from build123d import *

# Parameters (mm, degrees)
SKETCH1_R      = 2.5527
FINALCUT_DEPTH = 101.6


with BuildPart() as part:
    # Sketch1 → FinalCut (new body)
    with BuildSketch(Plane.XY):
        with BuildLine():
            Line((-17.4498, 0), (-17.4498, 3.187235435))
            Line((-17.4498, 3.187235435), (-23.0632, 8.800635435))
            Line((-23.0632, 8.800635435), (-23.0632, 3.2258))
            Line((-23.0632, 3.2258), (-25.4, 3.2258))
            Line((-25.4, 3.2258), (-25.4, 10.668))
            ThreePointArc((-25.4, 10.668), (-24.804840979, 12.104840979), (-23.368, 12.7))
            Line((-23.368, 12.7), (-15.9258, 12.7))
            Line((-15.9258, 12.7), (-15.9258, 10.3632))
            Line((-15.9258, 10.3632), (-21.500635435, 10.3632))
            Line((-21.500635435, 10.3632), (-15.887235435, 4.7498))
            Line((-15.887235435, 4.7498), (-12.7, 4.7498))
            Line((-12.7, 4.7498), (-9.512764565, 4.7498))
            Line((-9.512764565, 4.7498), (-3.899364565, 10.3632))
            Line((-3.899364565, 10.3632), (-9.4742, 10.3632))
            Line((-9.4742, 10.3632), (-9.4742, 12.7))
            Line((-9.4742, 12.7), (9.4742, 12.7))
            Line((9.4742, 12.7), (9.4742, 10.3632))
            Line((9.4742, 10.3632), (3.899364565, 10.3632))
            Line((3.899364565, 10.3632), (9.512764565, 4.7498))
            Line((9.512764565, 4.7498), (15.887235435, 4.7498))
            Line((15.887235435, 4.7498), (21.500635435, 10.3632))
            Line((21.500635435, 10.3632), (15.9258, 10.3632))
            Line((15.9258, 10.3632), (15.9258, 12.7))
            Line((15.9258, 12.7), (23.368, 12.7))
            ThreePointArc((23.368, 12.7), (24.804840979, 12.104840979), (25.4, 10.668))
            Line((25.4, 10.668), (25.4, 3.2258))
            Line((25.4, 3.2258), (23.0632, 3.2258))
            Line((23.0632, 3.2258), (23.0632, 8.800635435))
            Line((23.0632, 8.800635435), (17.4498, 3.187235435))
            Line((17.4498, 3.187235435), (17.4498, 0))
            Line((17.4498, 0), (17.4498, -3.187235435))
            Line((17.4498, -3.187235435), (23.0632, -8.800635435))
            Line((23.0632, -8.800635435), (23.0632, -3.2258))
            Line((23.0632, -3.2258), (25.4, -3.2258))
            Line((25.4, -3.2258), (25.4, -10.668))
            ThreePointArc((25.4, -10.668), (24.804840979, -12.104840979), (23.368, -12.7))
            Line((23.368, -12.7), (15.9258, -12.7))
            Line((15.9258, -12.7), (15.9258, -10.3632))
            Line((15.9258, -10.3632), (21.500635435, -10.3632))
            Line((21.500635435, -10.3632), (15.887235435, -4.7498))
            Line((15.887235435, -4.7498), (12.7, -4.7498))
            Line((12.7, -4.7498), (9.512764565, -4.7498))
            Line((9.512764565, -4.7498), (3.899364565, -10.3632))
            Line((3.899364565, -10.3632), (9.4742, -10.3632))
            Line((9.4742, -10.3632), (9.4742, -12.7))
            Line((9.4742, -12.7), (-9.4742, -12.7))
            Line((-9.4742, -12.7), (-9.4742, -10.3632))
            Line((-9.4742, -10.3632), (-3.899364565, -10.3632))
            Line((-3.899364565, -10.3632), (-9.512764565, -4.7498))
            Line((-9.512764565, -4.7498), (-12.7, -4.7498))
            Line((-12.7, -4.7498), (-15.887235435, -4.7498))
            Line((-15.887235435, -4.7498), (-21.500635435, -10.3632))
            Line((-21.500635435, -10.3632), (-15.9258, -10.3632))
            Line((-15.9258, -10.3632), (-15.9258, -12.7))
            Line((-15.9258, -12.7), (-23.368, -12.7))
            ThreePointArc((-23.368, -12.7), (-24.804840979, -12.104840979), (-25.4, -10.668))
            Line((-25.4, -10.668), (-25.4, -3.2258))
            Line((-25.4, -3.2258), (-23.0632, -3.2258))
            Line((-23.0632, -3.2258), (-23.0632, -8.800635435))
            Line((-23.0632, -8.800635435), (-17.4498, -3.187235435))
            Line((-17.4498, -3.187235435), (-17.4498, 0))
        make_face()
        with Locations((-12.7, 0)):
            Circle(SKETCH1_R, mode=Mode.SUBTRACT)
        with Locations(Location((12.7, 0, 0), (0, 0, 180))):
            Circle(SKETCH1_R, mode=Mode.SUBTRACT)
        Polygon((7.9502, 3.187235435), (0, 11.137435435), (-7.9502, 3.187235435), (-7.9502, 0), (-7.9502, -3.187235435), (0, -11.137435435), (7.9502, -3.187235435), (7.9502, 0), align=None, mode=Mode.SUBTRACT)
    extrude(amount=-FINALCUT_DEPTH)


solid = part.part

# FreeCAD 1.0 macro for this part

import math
import FreeCAD as App
import Part
import Sketcher
from FreeCAD import Vector
Q = App.Units.Quantity

doc = App.newDocument("Part")
body = doc.addObject("PartDesign::Body", "Body")

sketch1 = body.newObject("Sketcher::SketchObject", "Sketch")
sketch1.AttachmentSupport = (doc.getObject("XY_Plane"), [""])
sketch1.MapMode = "FlatFace"
sketch1.addGeometry([
    Part.LineSegment(Vector(-23.1, 8.8, 0), Vector(-17.4, 3.2, 0)),
    Part.LineSegment(Vector(-17.4, 3.2, 0), Vector(-17.4, -3.2, 0)),
    Part.LineSegment(Vector(-17.4, -3.2, 0), Vector(-23.1, -8.8, 0)),
    Part.LineSegment(Vector(-23.1, -8.8, 0), Vector(-23.1, -3.2, 0)),
    Part.LineSegment(Vector(-23.1, -3.2, 0), Vector(-25.4, -3.2, 0)),
    Part.LineSegment(Vector(-25.4, -3.2, 0), Vector(-25.4, -10.7, 0)),
    Part.ArcOfCircle(Part.Circle(Vector(-23.4, -10.7, 0), Vector(0, 0, 1), 2), math.radians(-180), math.radians(-90)),
    Part.LineSegment(Vector(-23.4, -12.7, 0), Vector(-15.9, -12.7, 0)),
    Part.LineSegment(Vector(-15.9, -12.7, 0), Vector(-15.9, -10.4, 0)),
    Part.LineSegment(Vector(-15.9, -10.4, 0), Vector(-21.5, -10.4, 0)),
    Part.LineSegment(Vector(-21.5, -10.4, 0), Vector(-15.9, -4.7, 0)),
    Part.LineSegment(Vector(-15.9, -4.7, 0), Vector(-9.5, -4.7, 0)),
    Part.LineSegment(Vector(-9.5, -4.7, 0), Vector(-3.9, -10.4, 0)),
    Part.LineSegment(Vector(-3.9, -10.4, 0), Vector(-9.5, -10.4, 0)),
    Part.LineSegment(Vector(-9.5, -10.4, 0), Vector(-9.5, -12.7, 0)),
    Part.LineSegment(Vector(-9.5, -12.7, 0), Vector(9.5, -12.7, 0)),
    Part.LineSegment(Vector(9.5, -12.7, 0), Vector(9.5, -10.4, 0)),
    Part.LineSegment(Vector(9.5, -10.4, 0), Vector(3.9, -10.4, 0)),
    Part.LineSegment(Vector(3.9, -10.4, 0), Vector(9.5, -4.7, 0)),
    Part.LineSegment(Vector(9.5, -4.7, 0), Vector(15.9, -4.7, 0)),
    Part.LineSegment(Vector(15.9, -4.7, 0), Vector(21.5, -10.4, 0)),
    Part.LineSegment(Vector(21.5, -10.4, 0), Vector(15.9, -10.4, 0)),
    Part.LineSegment(Vector(15.9, -10.4, 0), Vector(15.9, -12.7, 0)),
    Part.LineSegment(Vector(15.9, -12.7, 0), Vector(23.4, -12.7, 0)),
    Part.ArcOfCircle(Part.Circle(Vector(23.4, -10.7, 0), Vector(0, 0, 1), 2), math.radians(-90), math.radians(0)),
    Part.LineSegment(Vector(25.4, -10.7, 0), Vector(25.4, -3.2, 0)),
    Part.LineSegment(Vector(25.4, -3.2, 0), Vector(23.1, -3.2, 0)),
    Part.LineSegment(Vector(23.1, -3.2, 0), Vector(23.1, -8.8, 0)),
    Part.LineSegment(Vector(23.1, -8.8, 0), Vector(17.4, -3.2, 0)),
    Part.LineSegment(Vector(17.4, -3.2, 0), Vector(17.4, 3.2, 0)),
    Part.LineSegment(Vector(17.4, 3.2, 0), Vector(23.1, 8.8, 0)),
    Part.LineSegment(Vector(23.1, 8.8, 0), Vector(23.1, 3.2, 0)),
    Part.LineSegment(Vector(23.1, 3.2, 0), Vector(25.4, 3.2, 0)),
    Part.LineSegment(Vector(25.4, 3.2, 0), Vector(25.4, 10.7, 0)),
    Part.ArcOfCircle(Part.Circle(Vector(23.4, 10.7, 0), Vector(0, 0, 1), 2), math.radians(0), math.radians(90)),
    Part.LineSegment(Vector(23.4, 12.7, 0), Vector(15.9, 12.7, 0)),
    Part.LineSegment(Vector(15.9, 12.7, 0), Vector(15.9, 10.4, 0)),
    Part.LineSegment(Vector(15.9, 10.4, 0), Vector(21.5, 10.4, 0)),
    Part.LineSegment(Vector(21.5, 10.4, 0), Vector(15.9, 4.7, 0)),
    Part.LineSegment(Vector(15.9, 4.7, 0), Vector(9.5, 4.7, 0)),
    Part.LineSegment(Vector(9.5, 4.7, 0), Vector(3.9, 10.4, 0)),
    Part.LineSegment(Vector(3.9, 10.4, 0), Vector(9.5, 10.4, 0)),
    Part.LineSegment(Vector(9.5, 10.4, 0), Vector(9.5, 12.7, 0)),
    Part.LineSegment(Vector(9.5, 12.7, 0), Vector(-9.5, 12.7, 0)),
    Part.LineSegment(Vector(-9.5, 12.7, 0), Vector(-9.5, 10.4, 0)),
    Part.LineSegment(Vector(-9.5, 10.4, 0), Vector(-3.9, 10.4, 0)),
    Part.LineSegment(Vector(-3.9, 10.4, 0), Vector(-9.5, 4.7, 0)),
    Part.LineSegment(Vector(-9.5, 4.7, 0), Vector(-15.9, 4.7, 0)),
    Part.LineSegment(Vector(-15.9, 4.7, 0), Vector(-21.5, 10.4, 0)),
    Part.LineSegment(Vector(-21.5, 10.4, 0), Vector(-15.9, 10.4, 0)),
    Part.LineSegment(Vector(-15.9, 10.4, 0), Vector(-15.9, 12.7, 0)),
    Part.LineSegment(Vector(-15.9, 12.7, 0), Vector(-23.4, 12.7, 0)),
    Part.ArcOfCircle(Part.Circle(Vector(-23.4, 10.7, 0), Vector(0, 0, 1), 2), math.radians(90), math.radians(180)),
    Part.LineSegment(Vector(-25.4, 10.7, 0), Vector(-25.4, 3.2, 0)),
    Part.LineSegment(Vector(-25.4, 3.2, 0), Vector(-23.1, 3.2, 0)),
    Part.LineSegment(Vector(-23.1, 3.2, 0), Vector(-23.1, 8.8, 0)),
    Part.Circle(Vector(12.7, 0, 0), Vector(0, 0, 1), 2.6),
    Part.LineSegment(Vector(8, 3.2, 0), Vector(8, -3.2, 0)),
    Part.LineSegment(Vector(8, -3.2, 0), Vector(0, -11.1, 0)),
    Part.LineSegment(Vector(0, -11.1, 0), Vector(-8, -3.2, 0)),
    Part.LineSegment(Vector(-8, -3.2, 0), Vector(-8, 3.2, 0)),
    Part.LineSegment(Vector(-8, 3.2, 0), Vector(0, 11.1, 0)),
    Part.LineSegment(Vector(0, 11.1, 0), Vector(8, 3.2, 0)),
    Part.Circle(Vector(-12.7, 0, 0), Vector(0, 0, 1), 2.6),
], False)
sketch1.addConstraint([
    Sketcher.Constraint("Coincident", 0, 2, 1, 1),
    Sketcher.Constraint("Coincident", 1, 2, 2, 1),
    Sketcher.Constraint("Coincident", 2, 2, 3, 1),
    Sketcher.Constraint("Coincident", 3, 2, 4, 1),
    Sketcher.Constraint("Coincident", 4, 2, 5, 1),
    Sketcher.Constraint("Tangent", 5, 2, 6, 1),
    Sketcher.Constraint("Tangent", 6, 2, 7, 1),
    Sketcher.Constraint("Coincident", 7, 2, 8, 1),
    Sketcher.Constraint("Coincident", 8, 2, 9, 1),
    Sketcher.Constraint("Coincident", 9, 2, 10, 1),
    Sketcher.Constraint("Coincident", 10, 2, 11, 1),
    Sketcher.Constraint("Coincident", 11, 2, 12, 1),
    Sketcher.Constraint("Coincident", 12, 2, 13, 1),
    Sketcher.Constraint("Coincident", 13, 2, 14, 1),
    Sketcher.Constraint("Coincident", 14, 2, 15, 1),
    Sketcher.Constraint("Coincident", 15, 2, 16, 1),
    Sketcher.Constraint("Coincident", 16, 2, 17, 1),
    Sketcher.Constraint("Coincident", 17, 2, 18, 1),
    Sketcher.Constraint("Coincident", 18, 2, 19, 1),
    Sketcher.Constraint("Coincident", 19, 2, 20, 1),
    Sketcher.Constraint("Coincident", 20, 2, 21, 1),
    Sketcher.Constraint("Coincident", 21, 2, 22, 1),
    Sketcher.Constraint("Coincident", 22, 2, 23, 1),
    Sketcher.Constraint("Tangent", 23, 2, 24, 1),
    Sketcher.Constraint("Tangent", 24, 2, 25, 1),
    Sketcher.Constraint("Coincident", 25, 2, 26, 1),
    Sketcher.Constraint("Coincident", 26, 2, 27, 1),
    Sketcher.Constraint("Coincident", 27, 2, 28, 1),
    Sketcher.Constraint("Coincident", 28, 2, 29, 1),
    Sketcher.Constraint("Coincident", 29, 2, 30, 1),
    Sketcher.Constraint("Coincident", 30, 2, 31, 1),
    Sketcher.Constraint("Coincident", 31, 2, 32, 1),
    Sketcher.Constraint("Coincident", 32, 2, 33, 1),
    Sketcher.Constraint("Tangent", 33, 2, 34, 1),
    Sketcher.Constraint("Tangent", 34, 2, 35, 1),
    Sketcher.Constraint("Coincident", 35, 2, 36, 1),
    Sketcher.Constraint("Coincident", 36, 2, 37, 1),
    Sketcher.Constraint("Coincident", 37, 2, 38, 1),
    Sketcher.Constraint("Coincident", 38, 2, 39, 1),
    Sketcher.Constraint("Coincident", 39, 2, 40, 1),
    Sketcher.Constraint("Coincident", 40, 2, 41, 1),
    Sketcher.Constraint("Coincident", 41, 2, 42, 1),
    Sketcher.Constraint("Coincident", 42, 2, 43, 1),
    Sketcher.Constraint("Coincident", 43, 2, 44, 1),
    Sketcher.Constraint("Coincident", 44, 2, 45, 1),
    Sketcher.Constraint("Coincident", 45, 2, 46, 1),
    Sketcher.Constraint("Coincident", 46, 2, 47, 1),
    Sketcher.Constraint("Coincident", 47, 2, 48, 1),
    Sketcher.Constraint("Coincident", 48, 2, 49, 1),
    Sketcher.Constraint("Coincident", 49, 2, 50, 1),
    Sketcher.Constraint("Coincident", 50, 2, 51, 1),
    Sketcher.Constraint("Tangent", 51, 2, 52, 1),
    Sketcher.Constraint("Tangent", 52, 2, 53, 1),
    Sketcher.Constraint("Coincident", 53, 2, 54, 1),
    Sketcher.Constraint("Coincident", 54, 2, 55, 1),
    Sketcher.Constraint("Coincident", 55, 2, 0, 1),
    Sketcher.Constraint("Coincident", 57, 2, 58, 1),
    Sketcher.Constraint("Coincident", 58, 2, 59, 1),
    Sketcher.Constraint("Coincident", 59, 2, 60, 1),
    Sketcher.Constraint("Coincident", 60, 2, 61, 1),
    Sketcher.Constraint("Coincident", 61, 2, 62, 1),
    Sketcher.Constraint("Coincident", 62, 2, 57, 1),
    Sketcher.Constraint("Vertical", 1),
    Sketcher.Constraint("Vertical", 3),
    Sketcher.Constraint("Horizontal", 4),
    Sketcher.Constraint("Vertical", 5),
    Sketcher.Constraint("Horizontal", 7),
    Sketcher.Constraint("Vertical", 8),
    Sketcher.Constraint("Horizontal", 9),
    Sketcher.Constraint("Horizontal", 11),
    Sketcher.Constraint("Horizontal", 13),
    Sketcher.Constraint("Vertical", 14),
    Sketcher.Constraint("Horizontal", 15),
    Sketcher.Constraint("Vertical", 16),
    Sketcher.Constraint("Horizontal", 17),
    Sketcher.Constraint("Horizontal", 19),
    Sketcher.Constraint("Horizontal", 21),
    Sketcher.Constraint("Vertical", 22),
    Sketcher.Constraint("Horizontal", 23),
    Sketcher.Constraint("Vertical", 25),
    Sketcher.Constraint("Horizontal", 26),
    Sketcher.Constraint("Vertical", 27),
    Sketcher.Constraint("Vertical", 29),
    Sketcher.Constraint("Vertical", 31),
    Sketcher.Constraint("Horizontal", 32),
    Sketcher.Constraint("Vertical", 33),
    Sketcher.Constraint("Horizontal", 35),
    Sketcher.Constraint("Vertical", 36),
    Sketcher.Constraint("Horizontal", 37),
    Sketcher.Constraint("Horizontal", 39),
    Sketcher.Constraint("Horizontal", 41),
    Sketcher.Constraint("Vertical", 42),
    Sketcher.Constraint("Horizontal", 43),
    Sketcher.Constraint("Vertical", 44),
    Sketcher.Constraint("Horizontal", 45),
    Sketcher.Constraint("Horizontal", 47),
    Sketcher.Constraint("Horizontal", 49),
    Sketcher.Constraint("Vertical", 50),
    Sketcher.Constraint("Horizontal", 51),
    Sketcher.Constraint("Vertical", 53),
    Sketcher.Constraint("Horizontal", 54),
    Sketcher.Constraint("Vertical", 55),
    Sketcher.Constraint("Vertical", 57),
    Sketcher.Constraint("Vertical", 60),
    Sketcher.Constraint("Equal", 6, 24),
    Sketcher.Constraint("Equal", 24, 34),
    Sketcher.Constraint("Equal", 34, 52),
    Sketcher.Constraint("Equal", 56, 63),
    Sketcher.Constraint("Symmetric", 6, 3, 34, 3, -1, 1),
    Sketcher.Constraint("Symmetric", 24, 3, 52, 3, -1, 1),
    Sketcher.Constraint("Symmetric", 56, 3, 63, 3, -1, 1),
    Sketcher.Constraint("Symmetric", 0, 2, 28, 2, -1, 1),
    Sketcher.Constraint("Symmetric", 2, 2, 30, 2, -1, 1),
    Sketcher.Constraint("Symmetric", 8, 2, 36, 2, -1, 1),
    Sketcher.Constraint("Symmetric", 10, 2, 38, 2, -1, 1),
    Sketcher.Constraint("Symmetric", 12, 2, 40, 2, -1, 1),
    Sketcher.Constraint("Symmetric", 14, 2, 42, 2, -1, 1),
    Sketcher.Constraint("Symmetric", 16, 2, 44, 2, -1, 1),
    Sketcher.Constraint("Symmetric", 18, 2, 46, 2, -1, 1),
    Sketcher.Constraint("Symmetric", 20, 2, 48, 2, -1, 1),
    Sketcher.Constraint("Symmetric", 26, 2, 54, 2, -1, 1),
    Sketcher.Constraint("Symmetric", 57, 2, 60, 2, -1, 1),
    Sketcher.Constraint("Symmetric", 58, 2, 61, 2, -1, 1),
    Sketcher.Constraint("Symmetric", 6, 3, 24, 3, -2),
    Sketcher.Constraint("Symmetric", 13, 2, 16, 2, -2),
    Sketcher.Constraint("Symmetric", 11, 2, 18, 2, -2),
    Sketcher.Constraint("Symmetric", 9, 2, 20, 2, -2),
    Sketcher.Constraint("Symmetric", 3, 2, 26, 2, -2),
    Sketcher.Constraint("PointOnObject", 56, 3, -1),
    Sketcher.Constraint("PointOnObject", 58, 2, -2),
    Sketcher.Constraint("Perpendicular", 0, 2),
    Sketcher.Constraint("Parallel", 2, 10),
    Sketcher.Constraint("Perpendicular", 10, 12),
    Sketcher.Constraint("Perpendicular", 12, 18),
    Sketcher.Constraint("Perpendicular", 18, 20),
    Sketcher.Constraint("Parallel", 20, 28),
    Sketcher.Constraint("Perpendicular", 28, 30),
    Sketcher.Constraint("Parallel", 30, 38),
    Sketcher.Constraint("Perpendicular", 38, 40),
    Sketcher.Constraint("Perpendicular", 40, 46),
    Sketcher.Constraint("Perpendicular", 46, 48),
    Sketcher.Constraint("Perpendicular", 48, 58),
    Sketcher.Constraint("Perpendicular", 58, 59),
    Sketcher.Constraint("Perpendicular", 61, 62),
    Sketcher.Constraint("Horizontal", 9, 2, 12, 2),
    Sketcher.Constraint("Horizontal", 7, 2, 14, 2),
    Sketcher.Constraint("Horizontal", 2, 2, 27, 2),
    Sketcher.Constraint("Horizontal", 1, 2, 28, 2),
    Sketcher.Constraint("Horizontal", 32, 2, 53, 2),
    Sketcher.Constraint("Horizontal", 28, 2, 57, 2),
    Sketcher.Constraint("Vertical", 22, 2, 35, 2),
    Sketcher.Constraint("Vertical", 8, 2, 49, 2),
    Sketcher.Constraint("Equal", 9, 13),
    Sketcher.Constraint("Equal", 47, 1),
    Sketcher.Constraint("Equal", 49, 3),
    Sketcher.Constraint("Equal", 51, 5),
    Sketcher.Constraint("Equal", 54, 8),
    Sketcher.Constraint("Equal", 2, 10),
    Sketcher.Constraint("Radius", 6, Q("0.08 in")),
    Sketcher.Constraint("Diameter", 56, Q("0.201 in")),
    Sketcher.Constraint("DistanceX", 4, 2, -1, 1, Q("1 in")),
    Sketcher.Constraint("DistanceX", -1, 1, 56, 3, Q("0.5 in")),
    Sketcher.Constraint("DistanceY", 6, 2, -1, 1, Q("0.5 in")),
    Sketcher.Constraint("DistanceX", 4, 2, 4, 1, Q("0.092 in")),
    Sketcher.Constraint("DistanceX", 7, 1, 7, 2, Q("0.293 in")),
    Sketcher.Constraint("DistanceX", 0, 2, -1, 1, Q("0.687 in")),
    Sketcher.Constraint("DistanceX", -1, 1, 57, 2, Q("0.313 in")),
    Sketcher.Constraint("DistanceX", 11, 1, 11, 2, 6.374471),
])
pad1 = body.newObject("PartDesign::Pad", "Pad")
pad1.Profile = sketch1
pad1.Length = Q("4 in")
pad1.Reversed = True

doc.recompute()
